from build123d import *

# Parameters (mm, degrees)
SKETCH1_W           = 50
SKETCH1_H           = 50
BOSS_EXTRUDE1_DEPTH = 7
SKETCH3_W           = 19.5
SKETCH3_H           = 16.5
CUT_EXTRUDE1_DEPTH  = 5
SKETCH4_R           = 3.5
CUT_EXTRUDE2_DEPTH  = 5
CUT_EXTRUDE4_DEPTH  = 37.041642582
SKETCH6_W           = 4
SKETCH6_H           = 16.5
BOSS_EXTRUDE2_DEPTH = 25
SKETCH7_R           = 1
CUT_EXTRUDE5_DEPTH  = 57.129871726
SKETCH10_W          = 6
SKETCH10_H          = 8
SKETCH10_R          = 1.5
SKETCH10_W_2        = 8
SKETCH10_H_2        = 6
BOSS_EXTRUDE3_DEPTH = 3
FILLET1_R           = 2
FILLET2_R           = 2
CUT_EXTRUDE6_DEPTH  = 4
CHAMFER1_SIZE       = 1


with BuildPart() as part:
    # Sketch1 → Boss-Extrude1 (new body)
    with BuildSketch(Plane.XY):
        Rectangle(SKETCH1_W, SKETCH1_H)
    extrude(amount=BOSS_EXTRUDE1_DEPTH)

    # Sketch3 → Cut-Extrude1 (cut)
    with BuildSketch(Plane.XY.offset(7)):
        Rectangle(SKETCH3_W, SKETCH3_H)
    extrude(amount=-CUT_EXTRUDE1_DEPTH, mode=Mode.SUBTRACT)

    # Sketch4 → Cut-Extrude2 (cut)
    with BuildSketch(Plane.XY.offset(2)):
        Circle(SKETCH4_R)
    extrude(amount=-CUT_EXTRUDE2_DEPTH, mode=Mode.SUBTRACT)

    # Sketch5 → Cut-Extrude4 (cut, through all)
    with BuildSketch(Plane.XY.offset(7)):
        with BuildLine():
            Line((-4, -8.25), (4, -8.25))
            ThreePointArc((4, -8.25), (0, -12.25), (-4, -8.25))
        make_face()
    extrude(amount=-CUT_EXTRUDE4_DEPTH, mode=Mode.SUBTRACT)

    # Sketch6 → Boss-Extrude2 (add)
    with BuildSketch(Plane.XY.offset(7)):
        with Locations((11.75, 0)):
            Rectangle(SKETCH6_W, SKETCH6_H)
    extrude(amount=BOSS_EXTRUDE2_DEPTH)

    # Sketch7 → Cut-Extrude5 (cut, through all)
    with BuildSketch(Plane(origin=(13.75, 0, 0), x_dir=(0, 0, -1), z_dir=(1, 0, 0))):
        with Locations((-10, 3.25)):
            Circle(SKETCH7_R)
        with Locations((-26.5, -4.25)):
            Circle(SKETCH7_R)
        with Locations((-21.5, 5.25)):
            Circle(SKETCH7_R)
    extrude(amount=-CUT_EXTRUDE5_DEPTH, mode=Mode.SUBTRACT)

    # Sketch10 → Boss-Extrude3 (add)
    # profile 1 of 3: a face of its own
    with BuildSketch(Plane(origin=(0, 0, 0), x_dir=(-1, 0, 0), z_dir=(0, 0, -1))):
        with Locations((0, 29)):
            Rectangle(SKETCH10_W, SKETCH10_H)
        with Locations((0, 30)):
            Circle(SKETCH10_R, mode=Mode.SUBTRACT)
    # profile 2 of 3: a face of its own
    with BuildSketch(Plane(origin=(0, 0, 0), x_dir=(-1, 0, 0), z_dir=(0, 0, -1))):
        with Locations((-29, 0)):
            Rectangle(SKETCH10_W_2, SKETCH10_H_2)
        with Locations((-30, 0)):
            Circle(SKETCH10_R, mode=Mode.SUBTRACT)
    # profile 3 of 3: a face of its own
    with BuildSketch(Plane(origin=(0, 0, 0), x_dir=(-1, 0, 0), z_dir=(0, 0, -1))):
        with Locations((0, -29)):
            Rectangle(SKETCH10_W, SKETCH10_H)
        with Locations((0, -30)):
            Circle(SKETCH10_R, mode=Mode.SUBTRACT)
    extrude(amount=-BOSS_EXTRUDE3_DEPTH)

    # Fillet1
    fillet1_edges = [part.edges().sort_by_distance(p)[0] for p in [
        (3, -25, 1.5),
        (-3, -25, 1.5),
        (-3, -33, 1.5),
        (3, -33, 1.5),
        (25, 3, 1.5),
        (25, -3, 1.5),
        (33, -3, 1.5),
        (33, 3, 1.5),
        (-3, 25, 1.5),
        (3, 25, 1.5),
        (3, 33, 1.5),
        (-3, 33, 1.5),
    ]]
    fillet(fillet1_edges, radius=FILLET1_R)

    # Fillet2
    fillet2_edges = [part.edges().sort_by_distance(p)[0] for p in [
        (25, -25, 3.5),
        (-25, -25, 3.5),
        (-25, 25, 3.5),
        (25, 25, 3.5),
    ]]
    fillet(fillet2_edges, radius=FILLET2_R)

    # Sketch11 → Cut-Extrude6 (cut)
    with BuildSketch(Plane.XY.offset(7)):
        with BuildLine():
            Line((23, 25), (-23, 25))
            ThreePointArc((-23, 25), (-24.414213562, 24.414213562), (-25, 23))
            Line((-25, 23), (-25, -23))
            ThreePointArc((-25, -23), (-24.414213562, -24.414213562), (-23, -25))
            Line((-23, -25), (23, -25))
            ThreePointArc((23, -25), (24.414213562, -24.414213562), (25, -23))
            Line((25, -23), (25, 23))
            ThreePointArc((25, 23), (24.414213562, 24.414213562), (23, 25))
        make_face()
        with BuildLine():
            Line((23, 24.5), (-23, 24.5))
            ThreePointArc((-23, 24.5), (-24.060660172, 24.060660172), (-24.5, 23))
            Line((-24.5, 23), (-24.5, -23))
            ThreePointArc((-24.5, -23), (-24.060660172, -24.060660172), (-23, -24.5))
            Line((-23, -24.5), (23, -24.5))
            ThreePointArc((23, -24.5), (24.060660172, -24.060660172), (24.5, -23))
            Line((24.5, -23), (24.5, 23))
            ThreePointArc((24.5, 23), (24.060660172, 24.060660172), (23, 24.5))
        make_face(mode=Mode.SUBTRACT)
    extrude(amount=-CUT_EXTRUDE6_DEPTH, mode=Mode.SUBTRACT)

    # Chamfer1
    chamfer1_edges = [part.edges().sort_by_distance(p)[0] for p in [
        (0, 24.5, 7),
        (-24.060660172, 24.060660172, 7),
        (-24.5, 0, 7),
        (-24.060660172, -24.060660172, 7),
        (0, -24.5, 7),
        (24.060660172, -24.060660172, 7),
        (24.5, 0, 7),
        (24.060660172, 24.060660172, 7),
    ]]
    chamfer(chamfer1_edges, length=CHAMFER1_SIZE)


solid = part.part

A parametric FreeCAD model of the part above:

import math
import FreeCAD as App
import Part
import Sketcher
from FreeCAD import Vector
Q = App.Units.Quantity


def edges_at(feature, points):
    """Names of the edges that pass closest to the given points."""
    edges = feature.Shape.Edges
    near = lambda p: min(range(len(edges)), key=lambda i: edges[i].distToShape(Part.Vertex(*p))[0])
    return sorted({f"Edge{near(p) + 1}" for p in points})


def add_polygon(sketch, points):
    """Adds a closed chain of lines whose ends are joined by coincident constraints."""
    first, n = sketch.GeometryCount, len(points)
    for a, b in zip(points, points[1:] + points[:1]):
        sketch.addGeometry(Part.LineSegment(App.Vector(*a, 0), App.Vector(*b, 0)), False)
    for i in range(n):
        sketch.addConstraint(Sketcher.Constraint("Coincident", first + i, 2, first + (i + 1) % n, 1))

doc = App.newDocument("Part")
params = doc.addObject("Spreadsheet::Sheet", "Params")
for row, (alias, value) in enumerate([
    ("sketch1_width", "50 mm"),
    ("pad1_length", "7 mm"),
    ("sketch2_width", "19.5 mm"),
    ("sketch2_height", "16.5 mm"),
    ("pocket1_length", "5 mm"),
    ("sketch3_diameter", "7 mm"),
    ("pocket2_length", "5 mm"),
    ("sketch4_radius", "4 mm"),
    ("sketch5_width", "4 mm"),
    ("sketch5_height", "16.5 mm"),
    ("pad2_length", "25 mm"),
    ("sketch6_diameter", "2 mm"),
    ("sketch7_diameter", "3 mm"),
    ("sketch7_width", "6 mm"),
    ("sketch7_width2", "8 mm"),
    ("pad3_length", "3 mm"),
    ("fillet_radius", "2 mm"),
    ("fillet2_radius", "2 mm"),
    ("sketch8_radius", "2 mm"),
    ("sketch8_radius2", "1.5 mm"),
    ("sketch8_width", "46 mm"),
    ("pocket5_length", "4 mm"),
    ("chamfer_size", "1 mm"),
], start=1):
    params.set(f"A{row}", alias)
    params.set(f"B{row}", "=" + value)
    params.setAlias(f"B{row}", alias)

body = doc.addObject("PartDesign::Body", "Body")

# Sketch on XY plane
sketch1 = body.newObject("Sketcher::SketchObject", "Sketch")
sketch1.AttachmentSupport = (doc.getObject("XY_Plane"), [""])
sketch1.MapMode = "FlatFace"
add_polygon(sketch1, [(-25, 25), (-25, -25), (25, -25), (25, 25)])  # lines 0-3
sketch1.addConstraint([
    Sketcher.Constraint("Vertical", 0),
    Sketcher.Constraint("Horizontal", 1),
    Sketcher.Constraint("Vertical", 2),
    Sketcher.Constraint("Horizontal", 3),
    Sketcher.Constraint("Symmetric", 0, 2, 2, 2, -1, 1),
    Sketcher.Constraint("Equal", 3, 0),
    Sketcher.Constraint("DistanceX", 1, 1, 1, 2, Q("50 mm")),
])
sketch1.setExpression("Constraints[10]", "Params.sketch1_width")
pad1 = body.newObject("PartDesign::Pad", "Pad")
pad1.Profile = sketch1
pad1.setExpression("Length", "Params.pad1_length")

# Sketch on XY plane
sketch2 = body.newObject("Sketcher::SketchObject", "Sketch001")
sketch2.AttachmentSupport = (doc.getObject("XY_Plane"), [""])
sketch2.MapMode = "FlatFace"
sketch2.AttachmentOffset = App.Placement(Vector(0, 0, 7), App.Rotation())
add_polygon(sketch2, [(-10, 8), (-10, -8), (10, -8), (10, 8)])  # lines 0-3
sketch2.addConstraint([
    Sketcher.Constraint("Vertical", 0),
    Sketcher.Constraint("Horizontal", 1),
    Sketcher.Constraint("Vertical", 2),
    Sketcher.Constraint("Horizontal", 3),
    Sketcher.Constraint("Symmetric", 0, 2, 2, 2, -1, 1),
    Sketcher.Constraint("DistanceX", 1, 1, 1, 2, Q("19.5 mm")),
    Sketcher.Constraint("DistanceY", 0, 2, 0, 1, Q("16.5 mm")),
])
sketch2.setExpression("Constraints[9]", "Params.sketch2_width")
sketch2.setExpression("Constraints[10]", "Params.sketch2_height")
pocket1 = body.newObject("PartDesign::Pocket", "Pocket")
pocket1.Profile = sketch2
pocket1.setExpression("Length", "Params.pocket1_length")

# Sketch on XY plane
sketch3 = body.newObject("Sketcher::SketchObject", "Sketch002")
sketch3.AttachmentSupport = (doc.getObject("XY_Plane"), [""])
sketch3.MapMode = "FlatFace"
sketch3.AttachmentOffset = App.Placement(Vector(0, 0, 2), App.Rotation())
sketch3.addGeometry(Part.Circle(Vector(0, 0, 0), Vector(0, 0, 1), 3.5), False)
sketch3.addConstraint([
    Sketcher.Constraint("Coincident", 0, 3, -1, 1),
    Sketcher.Constraint("Diameter", 0, Q("7 mm")),
])
sketch3.setExpression("Constraints[1]", "Params.sketch3_diameter")
pocket2 = body.newObject("PartDesign::Pocket", "Pocket001")
pocket2.Profile = sketch3
pocket2.setExpression("Length", "Params.pocket2_length")

# Sketch on XY plane
sketch4 = body.newObject("Sketcher::SketchObject", "Sketch003")
sketch4.AttachmentSupport = (doc.getObject("XY_Plane"), [""])
sketch4.MapMode = "FlatFace"
sketch4.AttachmentOffset = App.Placement(Vector(0, 0, 7), App.Rotation())
sketch4.addGeometry([
    Part.LineSegment(Vector(4, -8.2, 0), Vector(-4, -8.2, 0)),
    Part.ArcOfCircle(Part.Circle(Vector(0, -8.2, 0), Vector(0, 0, 1), 4), math.radians(180), math.radians(360)),
], False)
sketch4.addConstraint([
    Sketcher.Constraint("Coincident", 0, 1, 1, 2),
    Sketcher.Constraint("Coincident", 1, 1, 0, 2),
    Sketcher.Constraint("Horizontal", 0),
    Sketcher.Constraint("PointOnObject", 1, 3, -2),
    Sketcher.Constraint("Horizontal", 1, 3, 0, 1),
    Sketcher.Constraint("Radius", 1, Q("4 mm")),
    Sketcher.Constraint("DistanceY", 1, 3, -1, 1, Q("8.25 mm")),
])
sketch4.setExpression("Constraints[5]", "Params.sketch4_radius")
pocket3 = body.newObject("PartDesign::Pocket", "Pocket002")
pocket3.Profile = sketch4
pocket3.Type = "ThroughAll"

# Sketch on XY plane
sketch5 = body.newObject("Sketcher::SketchObject", "Sketch004")
sketch5.AttachmentSupport = (doc.getObject("XY_Plane"), [""])
sketch5.MapMode = "FlatFace"
sketch5.AttachmentOffset = App.Placement(Vector(0, 0, 7), App.Rotation())
add_polygon(sketch5, [(9.8, 8.2), (9.8, -8.2), (13.8, -8.2), (13.8, 8.2)])  # lines 0-3
sketch5.addConstraint([
    Sketcher.Constraint("Vertical", 0),
    Sketcher.Constraint("Horizontal", 1),
    Sketcher.Constraint("Vertical", 2),
    Sketcher.Constraint("Horizontal", 3),
    Sketcher.Constraint("DistanceX", 1, 1, 1, 2, Q("4 mm")),
    Sketcher.Constraint("DistanceY", 0, 2, 0, 1, Q("16.5 mm")),
    Sketcher.Constraint("DistanceX", -1, 1, 0, 2, Q("9.75 mm")),
    Sketcher.Constraint("DistanceY", 0, 2, -1, 1, Q("8.25 mm")),
])
sketch5.setExpression("Constraints[8]", "Params.sketch5_width")
sketch5.setExpression("Constraints[9]", "Params.sketch5_height")
pad2 = body.newObject("PartDesign::Pad", "Pad001")
pad2.Profile = sketch5
pad2.setExpression("Length", "Params.pad2_length")

# Sketch on YZ plane
sketch6 = body.newObject("Sketcher::SketchObject", "Sketch005")
sketch6.AttachmentSupport = (doc.getObject("YZ_Plane"), [""])
sketch6.MapMode = "FlatFace"
sketch6.AttachmentOffset = App.Placement(Vector(0, 0, 13.75), App.Rotation())
sketch6.addGeometry([
    Part.Circle(Vector(3.2, 10, 0), Vector(0, 0, 1), 1),
    Part.Circle(Vector(-4.2, 26.5, 0), Vector(0, 0, 1), 1),
    Part.Circle(Vector(5.2, 21.5, 0), Vector(0, 0, 1), 1),
], False)
sketch6.addConstraint([
    Sketcher.Constraint("Equal", 0, 1),
    Sketcher.Constraint("Equal", 1, 2),
    Sketcher.Constraint("Diameter", 0, Q("2 mm")),
    Sketcher.Constraint("DistanceY", -1, 1, 0, 3, Q("10 mm")),
    Sketcher.Constraint("DistanceY", 2, 3, 1, 3, Q("5 mm")),
    Sketcher.Constraint("DistanceX", 0, 3, 2, 3, Q("2 mm")),
    Sketcher.Constraint("DistanceY", -1, 1, 1, 3, Q("26.5 mm")),
    Sketcher.Constraint("DistanceX", 1, 3, 0, 3, Q("7.5 mm")),
    Sketcher.Constraint("DistanceX", -1, 1, 0, 3, Q("3.25 mm")),
])
sketch6.setExpression("Constraints[2]", "Params.sketch6_diameter")
pocket4 = body.newObject("PartDesign::Pocket", "Pocket003")
pocket4.Profile = sketch6
pocket4.Type = "ThroughAll"

# Sketch on XY plane
sketch7 = body.newObject("Sketcher::SketchObject", "Sketch006")
sketch7.AttachmentSupport = (doc.getObject("XY_Plane"), [""])
sketch7.MapMode = "FlatFace"
add_polygon(sketch7, [(3, 33), (3, 25), (-3, 25), (-3, 33)])  # lines 0-3
sketch7.addGeometry(Part.Circle(Vector(0, 30, 0), Vector(0, 0, 1), 1.5), False)  # 4
add_polygon(sketch7, [(33, 3), (33, -3), (25, -3), (25, 3)])  # lines 5-8
sketch7.addGeometry(Part.Circle(Vector(30, 0, 0), Vector(0, 0, 1), 1.5), False)  # 9
add_polygon(sketch7, [(3, -25), (3, -33), (-3, -33), (-3, -25)])  # lines 10-13
sketch7.addGeometry(Part.Circle(Vector(0, -30, 0), Vector(0, 0, 1), 1.5), False)  # 14
sketch7.addConstraint([
    Sketcher.Constraint("Vertical", 0),
    Sketcher.Constraint("Horizontal", 1),
    Sketcher.Constraint("Vertical", 2),
    Sketcher.Constraint("Horizontal", 3),
    Sketcher.Constraint("Vertical", 5),
    Sketcher.Constraint("Horizontal", 6),
    Sketcher.Constraint("Vertical", 7),
    Sketcher.Constraint("Horizontal", 8),
    Sketcher.Constraint("Vertical", 10),
    Sketcher.Constraint("Horizontal", 11),
    Sketcher.Constraint("Vertical", 12),
    Sketcher.Constraint("Horizontal", 13),
    Sketcher.Constraint("Equal", 4, 9),
    Sketcher.Constraint("Equal", 9, 14),
    Sketcher.Constraint("Symmetric", 4, 3, 14, 3, -1, 1),
    Sketcher.Constraint("Symmetric", 2, 2, 10, 2, -1, 1),
    Sketcher.Constraint("Symmetric", 0, 2, 12, 2, -1, 1),
    Sketcher.Constraint("PointOnObject", 4, 3, -2),
    Sketcher.Constraint("PointOnObject", 9, 3, -1),
    Sketcher.Constraint("Vertical", 3, 2, 10, 2),
    Sketcher.Constraint("Equal", 8, 0),
    Sketcher.Constraint("Equal", 13, 5),
    Sketcher.Constraint("Diameter", 4, Q("3 mm")),
    Sketcher.Constraint("DistanceX", 1, 2, 1, 1, Q("6 mm")),
    Sketcher.Constraint("DistanceX", 6, 2, 6, 1, Q("8 mm")),
    Sketcher.Constraint("DistanceY", -1, 1, 4, 3, Q("30 mm")),
    Sketcher.Constraint("DistanceX", -1, 1, 9, 3, Q("30 mm")),
    Sketcher.Constraint("DistanceY", -1, 1, 0, 2, Q("25 mm")),
    Sketcher.Constraint("DistanceX", -1, 1, 5, 2, Q("33 mm")),
    Sketcher.Constraint("DistanceY", 5, 2, -1, 1, Q("3 mm")),
])
sketch7.setExpression("Constraints[34]", "Params.sketch7_diameter")
sketch7.setExpression("Constraints[35]", "Params.sketch7_width")
sketch7.setExpression("Constraints[36]", "Params.sketch7_width2")
pad3 = body.newObject("PartDesign::Pad", "Pad002")
pad3.Profile = sketch7
pad3.setExpression("Length", "Params.pad3_length")
doc.recompute()

fillet = body.newObject("PartDesign::Fillet", "Fillet")
fillet.Base = (pad3, edges_at(pad3, [
    (3, -25, 1.5),
    (-3, -25, 1.5),
    (-3, -33, 1.5),
    (3, -33, 1.5),
    (25, 3, 1.5),
    (25, -3, 1.5),
    (33, -3, 1.5),
    (33, 3, 1.5),
    (-3, 25, 1.5),
    (3, 25, 1.5),
    (3, 33, 1.5),
    (-3, 33, 1.5),
]))
fillet.setExpression("Radius", "Params.fillet_radius")
doc.recompute()

fillet2 = body.newObject("PartDesign::Fillet", "Fillet001")
fillet2.Base = (fillet, edges_at(fillet, [
    (25, -25, 3.5),
    (-25, -25, 3.5),
    (-25, 25, 3.5),
    (25, 25, 3.5),
]))
fillet2.setExpression("Radius", "Params.fillet2_radius")

# Sketch on XY plane
sketch8 = body.newObject("Sketcher::SketchObject", "Sketch007")
sketch8.AttachmentSupport = (doc.getObject("XY_Plane"), [""])
sketch8.MapMode = "FlatFace"
sketch8.AttachmentOffset = App.Placement(Vector(0, 0, 7), App.Rotation())
sketch8.addGeometry([
    Part.LineSegment(Vector(23, 25, 0), Vector(-23, 25, 0)),  # 0
    Part.ArcOfCircle(Part.Circle(Vector(-23, 23, 0), Vector(0, 0, 1), 2), math.radians(90), math.radians(180)),  # 1
    Part.LineSegment(Vector(-25, 23, 0), Vector(-25, -23, 0)),  # 2
    Part.ArcOfCircle(Part.Circle(Vector(-23, -23, 0), Vector(0, 0, 1), 2), math.radians(-180), math.radians(-90)),  # 3
    Part.LineSegment(Vector(-23, -25, 0), Vector(23, -25, 0)),  # 4
    Part.ArcOfCircle(Part.Circle(Vector(23, -23, 0), Vector(0, 0, 1), 2), math.radians(-90), math.radians(0)),  # 5
    Part.LineSegment(Vector(25, -23, 0), Vector(25, 23, 0)),  # 6
    Part.ArcOfCircle(Part.Circle(Vector(23, 23, 0), Vector(0, 0, 1), 2), math.radians(0), math.radians(90)),  # 7
    Part.LineSegment(Vector(-23, 24.5, 0), Vector(23, 24.5, 0)),  # 8
    Part.ArcOfCircle(Part.Circle(Vector(23, 23, 0), Vector(0, 0, 1), 1.5), math.radians(0), math.radians(90)),  # 9
    Part.LineSegment(Vector(24.5, 23, 0), Vector(24.5, -23, 0)),  # 10
    Part.ArcOfCircle(Part.Circle(Vector(23, -23, 0), Vector(0, 0, 1), 1.5), math.radians(-90), math.radians(0)),  # 11
    Part.LineSegment(Vector(23, -24.5, 0), Vector(-23, -24.5, 0)),  # 12
    Part.ArcOfCircle(Part.Circle(Vector(-23, -23, 0), Vector(0, 0, 1), 1.5), math.radians(180), math.radians(270)),  # 13
    Part.LineSegment(Vector(-24.5, -23, 0), Vector(-24.5, 23, 0)),  # 14
    Part.ArcOfCircle(Part.Circle(Vector(-23, 23, 0), Vector(0, 0, 1), 1.5), math.radians(90), math.radians(180)),  # 15
], False)
sketch8.addConstraint([
    Sketcher.Constraint("Tangent", 0, 2, 1, 1),
    Sketcher.Constraint("Tangent", 1, 2, 2, 1),
    Sketcher.Constraint("Tangent", 2, 2, 3, 1),
    Sketcher.Constraint("Tangent", 3, 2, 4, 1),
    Sketcher.Constraint("Tangent", 4, 2, 5, 1),
    Sketcher.Constraint("Tangent", 5, 2, 6, 1),
    Sketcher.Constraint("Tangent", 6, 2, 7, 1),
    Sketcher.Constraint("Tangent", 7, 2, 0, 1),
    Sketcher.Constraint("Tangent", 8, 2, 9, 2),
    Sketcher.Constraint("Tangent", 9, 1, 10, 1),
    Sketcher.Constraint("Tangent", 10, 2, 11, 2),
    Sketcher.Constraint("Tangent", 11, 1, 12, 1),
    Sketcher.Constraint("Tangent", 12, 2, 13, 2),
    Sketcher.Constraint("Tangent", 13, 1, 14, 1),
    Sketcher.Constraint("Tangent", 14, 2, 15, 2),
    Sketcher.Constraint("Tangent", 15, 1, 8, 1),
    Sketcher.Constraint("Horizontal", 0),
    Sketcher.Constraint("Vertical", 2),
    Sketcher.Constraint("Horizontal", 4),
    Sketcher.Constraint("Vertical", 6),
    Sketcher.Constraint("Horizontal", 8),
    Sketcher.Constraint("Vertical", 10),
    Sketcher.Constraint("Horizontal", 12),
    Sketcher.Constraint("Vertical", 14),
    Sketcher.Constraint("Coincident", 9, 3, 7, 3),
    Sketcher.Constraint("Coincident", 11, 3, 5, 3),
    Sketcher.Constraint("Coincident", 13, 3, 3, 3),
    Sketcher.Constraint("Equal", 1, 3),
    Sketcher.Constraint("Equal", 3, 5),
    Sketcher.Constraint("Equal", 5, 7),
    Sketcher.Constraint("Equal", 13, 15),
    Sketcher.Constraint("Symmetric", 1, 3, 5, 3, -1, 1),
    Sketcher.Constraint("Equal", 12, 2),
    Sketcher.Constraint("Radius", 1, Q("2 mm")),
    Sketcher.Constraint("Radius", 9, Q("1.5 mm")),
    Sketcher.Constraint("DistanceX", 0, 2, 0, 1, Q("46 mm")),
])
sketch8.setExpression("Constraints[33]", "Params.sketch8_radius")
sketch8.setExpression("Constraints[34]", "Params.sketch8_radius2")
sketch8.setExpression("Constraints[35]", "Params.sketch8_width")
pocket5 = body.newObject("PartDesign::Pocket", "Pocket004")
pocket5.Profile = sketch8
pocket5.setExpression("Length", "Params.pocket5_length")
doc.recompute()

chamfer = body.newObject("PartDesign::Chamfer", "Chamfer")
chamfer.Base = (pocket5, edges_at(pocket5, [
    (0, 24.5, 7),
    (-24.061, 24.061, 7),
    (-24.5, 0, 7),
    (-24.061, -24.061, 7),
    (0, -24.5, 7),
    (24.061, -24.061, 7),
    (24.5, 0, 7),
    (24.061, 24.061, 7),
]))
chamfer.setExpression("Size", "Params.chamfer_size")

doc.recompute()
